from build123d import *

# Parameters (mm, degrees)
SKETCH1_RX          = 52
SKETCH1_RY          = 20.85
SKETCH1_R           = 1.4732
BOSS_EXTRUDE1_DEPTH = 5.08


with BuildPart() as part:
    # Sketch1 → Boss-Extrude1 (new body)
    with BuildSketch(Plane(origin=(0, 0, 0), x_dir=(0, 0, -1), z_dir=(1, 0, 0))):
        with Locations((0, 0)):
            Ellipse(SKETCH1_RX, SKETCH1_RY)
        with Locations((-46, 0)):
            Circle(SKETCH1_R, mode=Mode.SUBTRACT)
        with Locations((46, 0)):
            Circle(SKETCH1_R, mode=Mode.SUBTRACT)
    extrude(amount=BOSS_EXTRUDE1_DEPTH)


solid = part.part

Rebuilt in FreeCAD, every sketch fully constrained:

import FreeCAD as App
import Part
import Sketcher
from FreeCAD import Vector
Q = App.Units.Quantity

doc = App.newDocument("Part")
body = doc.addObject("PartDesign::Body", "Body")

sketch1 = body.newObject("Sketcher::SketchObject", "Sketch")
sketch1.AttachmentSupport = (doc.getObject("YZ_Plane"), [""])
sketch1.MapMode = "FlatFace"
sketch1.addGeometry([
    Part.Ellipse(Vector(0, -52, 0), Vector(20.85, 0, 0), Vector(0, 0, 0)),
    Part.Circle(Vector(0, 46, 0), Vector(0, 0, 1), 1.4732),
    Part.Circle(Vector(0, -46, 0), Vector(0, 0, 1), 1.4732),
], False)
sketch1.addConstraint([
    Sketcher.Constraint("Block", 0),
    Sketcher.Constraint("Equal", 1, 2),
    Sketcher.Constraint("Symmetric", 1, 3, 2, 3, -1, 1),
    Sketcher.Constraint("PointOnObject", 1, 3, -2),
    Sketcher.Constraint("Diameter", 1, Q("0.116 in")),
    Sketcher.Constraint("DistanceY", -1, 1, 1, 3, 46.0),
])
pad1 = body.newObject("PartDesign::Pad", "Pad")
pad1.Profile = sketch1
pad1.Length = Q("0.2 in")

doc.recompute()
